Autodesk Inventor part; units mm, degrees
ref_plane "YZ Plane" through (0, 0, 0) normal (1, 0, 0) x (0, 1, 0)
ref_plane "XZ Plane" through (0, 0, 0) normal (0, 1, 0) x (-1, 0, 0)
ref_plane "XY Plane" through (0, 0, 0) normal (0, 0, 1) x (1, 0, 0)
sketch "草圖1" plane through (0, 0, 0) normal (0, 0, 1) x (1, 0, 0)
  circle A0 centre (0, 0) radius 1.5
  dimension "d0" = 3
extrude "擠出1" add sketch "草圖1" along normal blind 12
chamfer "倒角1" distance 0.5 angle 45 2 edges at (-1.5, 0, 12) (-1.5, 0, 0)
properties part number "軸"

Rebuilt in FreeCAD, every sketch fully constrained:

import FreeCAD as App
import Part
import Sketcher

V = App.Vector
Q = App.Units.Quantity


def edges_at(feature, points):
    """Names of the edges that pass closest to the given points."""
    edges = feature.Shape.Edges
    near = lambda p: min(range(len(edges)), key=lambda i: edges[i].distToShape(Part.Vertex(*p))[0])
    return sorted({f"Edge{near(p) + 1}" for p in points})

doc = App.newDocument("Part")
body = doc.addObject("PartDesign::Body", "Body")

# Sketch on XY plane
sketch1 = body.newObject("Sketcher::SketchObject", "Sketch")
sketch1.AttachmentSupport = (doc.getObject("XY_Plane"), [""])
sketch1.MapMode = "FlatFace"
sketch1.addGeometry(Part.Circle(V(0, 0, 0), V(0, 0, 1), 1.5), False)
sketch1.addConstraint(Sketcher.Constraint("Coincident", 0, 3, -1, 1))
sketch1.addConstraint(Sketcher.Constraint("Diameter", 0, Q("3 mm")))
pad1 = body.newObject("PartDesign::Pad", "Pad")
pad1.Profile = sketch1
pad1.Length = 12
doc.recompute()

chamfer = body.newObject("PartDesign::Chamfer", "Chamfer")
chamfer.Base = (pad1, edges_at(pad1, [(-1.5, 0, 12), (-1.5, 0, 0)]))
chamfer.Size = 0.5

doc.recompute()
